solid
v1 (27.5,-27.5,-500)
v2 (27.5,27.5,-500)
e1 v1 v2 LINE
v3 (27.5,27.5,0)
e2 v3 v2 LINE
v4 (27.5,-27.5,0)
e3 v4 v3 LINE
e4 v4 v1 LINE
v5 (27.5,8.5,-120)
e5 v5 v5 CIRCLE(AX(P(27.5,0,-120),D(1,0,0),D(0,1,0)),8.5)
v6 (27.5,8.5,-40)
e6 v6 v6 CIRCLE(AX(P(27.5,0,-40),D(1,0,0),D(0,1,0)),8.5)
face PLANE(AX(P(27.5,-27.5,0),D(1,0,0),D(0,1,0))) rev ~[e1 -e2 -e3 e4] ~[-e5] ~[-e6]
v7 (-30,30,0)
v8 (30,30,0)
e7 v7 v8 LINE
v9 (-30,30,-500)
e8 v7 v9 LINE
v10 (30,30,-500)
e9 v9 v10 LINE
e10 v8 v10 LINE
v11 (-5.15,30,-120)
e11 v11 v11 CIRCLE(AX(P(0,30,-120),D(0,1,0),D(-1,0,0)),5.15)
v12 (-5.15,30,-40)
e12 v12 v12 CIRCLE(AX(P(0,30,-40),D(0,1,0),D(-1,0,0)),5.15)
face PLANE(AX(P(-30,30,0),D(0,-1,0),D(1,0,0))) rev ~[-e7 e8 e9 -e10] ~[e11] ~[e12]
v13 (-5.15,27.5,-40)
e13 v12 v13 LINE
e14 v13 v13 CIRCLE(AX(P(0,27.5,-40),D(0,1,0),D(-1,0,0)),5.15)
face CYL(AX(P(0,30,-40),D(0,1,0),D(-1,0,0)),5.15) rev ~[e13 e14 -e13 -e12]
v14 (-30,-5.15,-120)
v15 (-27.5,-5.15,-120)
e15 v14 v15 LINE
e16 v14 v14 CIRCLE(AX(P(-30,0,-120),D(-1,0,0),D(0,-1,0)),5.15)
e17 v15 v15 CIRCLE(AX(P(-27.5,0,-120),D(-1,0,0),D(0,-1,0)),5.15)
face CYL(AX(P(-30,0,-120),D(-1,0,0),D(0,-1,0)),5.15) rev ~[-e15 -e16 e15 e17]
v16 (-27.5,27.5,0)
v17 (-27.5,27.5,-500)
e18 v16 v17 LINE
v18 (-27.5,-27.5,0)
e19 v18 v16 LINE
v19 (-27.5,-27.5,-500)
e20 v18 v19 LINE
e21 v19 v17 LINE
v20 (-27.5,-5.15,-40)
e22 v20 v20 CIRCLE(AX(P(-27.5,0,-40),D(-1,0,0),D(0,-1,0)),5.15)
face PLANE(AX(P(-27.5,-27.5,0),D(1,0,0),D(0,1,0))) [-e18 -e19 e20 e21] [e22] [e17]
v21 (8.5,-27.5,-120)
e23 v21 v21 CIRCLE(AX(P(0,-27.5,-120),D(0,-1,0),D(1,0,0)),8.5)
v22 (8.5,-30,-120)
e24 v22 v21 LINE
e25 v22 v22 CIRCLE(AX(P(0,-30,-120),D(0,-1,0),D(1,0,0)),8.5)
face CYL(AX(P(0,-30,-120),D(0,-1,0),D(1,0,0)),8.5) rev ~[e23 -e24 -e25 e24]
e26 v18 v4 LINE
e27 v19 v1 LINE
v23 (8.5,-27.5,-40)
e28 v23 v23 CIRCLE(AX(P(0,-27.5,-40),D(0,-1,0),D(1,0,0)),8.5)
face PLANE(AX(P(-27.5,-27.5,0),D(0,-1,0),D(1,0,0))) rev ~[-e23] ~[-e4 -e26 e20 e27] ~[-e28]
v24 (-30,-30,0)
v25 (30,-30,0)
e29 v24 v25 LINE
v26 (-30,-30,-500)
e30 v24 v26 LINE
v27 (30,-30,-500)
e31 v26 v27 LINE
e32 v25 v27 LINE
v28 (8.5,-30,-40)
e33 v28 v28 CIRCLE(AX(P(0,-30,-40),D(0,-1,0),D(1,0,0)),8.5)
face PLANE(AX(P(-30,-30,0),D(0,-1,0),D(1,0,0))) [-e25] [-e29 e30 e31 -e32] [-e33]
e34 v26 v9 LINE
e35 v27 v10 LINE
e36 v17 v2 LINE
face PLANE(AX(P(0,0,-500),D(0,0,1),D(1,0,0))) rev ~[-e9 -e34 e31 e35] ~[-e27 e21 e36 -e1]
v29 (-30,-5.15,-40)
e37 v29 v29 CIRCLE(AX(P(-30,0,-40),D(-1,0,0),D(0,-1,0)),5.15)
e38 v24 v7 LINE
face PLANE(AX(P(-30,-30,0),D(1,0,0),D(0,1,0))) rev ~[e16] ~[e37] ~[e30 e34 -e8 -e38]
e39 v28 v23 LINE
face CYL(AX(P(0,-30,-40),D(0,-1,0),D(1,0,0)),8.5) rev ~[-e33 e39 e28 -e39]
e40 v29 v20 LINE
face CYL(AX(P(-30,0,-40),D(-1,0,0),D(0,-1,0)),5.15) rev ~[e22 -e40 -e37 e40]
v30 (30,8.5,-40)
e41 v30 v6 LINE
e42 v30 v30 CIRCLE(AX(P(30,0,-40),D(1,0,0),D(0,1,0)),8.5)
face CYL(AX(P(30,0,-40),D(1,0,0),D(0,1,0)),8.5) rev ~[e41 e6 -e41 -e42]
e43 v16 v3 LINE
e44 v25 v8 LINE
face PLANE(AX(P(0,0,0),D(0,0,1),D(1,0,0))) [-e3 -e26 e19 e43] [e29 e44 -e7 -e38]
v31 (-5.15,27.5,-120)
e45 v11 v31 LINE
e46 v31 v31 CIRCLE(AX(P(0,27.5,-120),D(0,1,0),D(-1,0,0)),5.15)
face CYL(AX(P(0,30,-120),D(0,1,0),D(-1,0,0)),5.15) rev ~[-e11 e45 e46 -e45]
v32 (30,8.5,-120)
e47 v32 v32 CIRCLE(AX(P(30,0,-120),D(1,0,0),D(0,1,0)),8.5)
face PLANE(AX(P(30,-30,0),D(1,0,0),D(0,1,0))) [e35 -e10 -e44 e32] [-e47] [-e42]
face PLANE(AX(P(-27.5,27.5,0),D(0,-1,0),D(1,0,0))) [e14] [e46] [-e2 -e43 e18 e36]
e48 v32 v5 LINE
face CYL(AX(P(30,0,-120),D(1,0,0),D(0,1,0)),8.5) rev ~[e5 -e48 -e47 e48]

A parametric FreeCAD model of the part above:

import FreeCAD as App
import Part
import Sketcher
from FreeCAD import Vector

doc = App.newDocument("Part")
params = doc.addObject("Spreadsheet::Sheet", "Params")
for row, (alias, value) in enumerate([
    ("sketch1_width", "60 mm"),
    ("sketch1_width2", "55 mm"),
    ("pad1_length", "500 mm"),
    ("sketch2_diameter", "17 mm"),
    ("pocket1_length", "5 mm"),
    ("sketch3_diameter", "17 mm"),
    ("pocket2_length", "5 mm"),
    ("sketch4_diameter", "10.3 mm"),
    ("pocket3_length", "5 mm"),
    ("sketch5_diameter", "10.3 mm"),
    ("pocket4_length", "5 mm"),
], start=1):
    params.set(f"A{row}", alias)
    params.set(f"B{row}", "=" + value)
    params.setAlias(f"B{row}", alias)

body = doc.addObject("PartDesign::Body", "Body")

# Sketch on XY plane
sketch1 = body.newObject("Sketcher::SketchObject", "Sketch")
sketch1.AttachmentSupport = (doc.getObject("XY_Plane"), [""])
sketch1.MapMode = "FlatFace"
sketch1.addGeometry([
    Part.LineSegment(Vector(-30, 30, 0), Vector(-30, -30, 0)),  # 0
    Part.LineSegment(Vector(-30, -30, 0), Vector(30, -30, 0)),  # 1
    Part.LineSegment(Vector(30, -30, 0), Vector(30, 30, 0)),  # 2
    Part.LineSegment(Vector(30, 30, 0), Vector(-30, 30, 0)),  # 3
    Part.LineSegment(Vector(28, -28, 0), Vector(-28, -28, 0)),  # 4
    Part.LineSegment(Vector(-28, -28, 0), Vector(-28, 28, 0)),  # 5
    Part.LineSegment(Vector(-28, 28, 0), Vector(28, 28, 0)),  # 6
    Part.LineSegment(Vector(28, 28, 0), Vector(28, -28, 0)),  # 7
], False)
sketch1.addConstraint([
    Sketcher.Constraint("Coincident", 0, 2, 1, 1),
    Sketcher.Constraint("Coincident", 1, 2, 2, 1),
    Sketcher.Constraint("Coincident", 2, 2, 3, 1),
    Sketcher.Constraint("Coincident", 3, 2, 0, 1),
    Sketcher.Constraint("Coincident", 4, 2, 5, 1),
    Sketcher.Constraint("Coincident", 5, 2, 6, 1),
    Sketcher.Constraint("Coincident", 6, 2, 7, 1),
    Sketcher.Constraint("Coincident", 7, 2, 4, 1),
    Sketcher.Constraint("Vertical", 0),
    Sketcher.Constraint("Horizontal", 1),
    Sketcher.Constraint("Vertical", 2),
    Sketcher.Constraint("Horizontal", 3),
    Sketcher.Constraint("Horizontal", 4),
    Sketcher.Constraint("Vertical", 5),
    Sketcher.Constraint("Horizontal", 6),
    Sketcher.Constraint("Vertical", 7),
    Sketcher.Constraint("Symmetric", 0, 2, 2, 2, -1, 1),
    Sketcher.Constraint("Symmetric", 4, 2, 6, 2, -1, 1),
    Sketcher.Constraint("Equal", 3, 0),
    Sketcher.Constraint("Equal", 6, 5),
    Sketcher.Constraint("DistanceX", 1, 1, 1, 2, 60.0),
    Sketcher.Constraint("DistanceX", 4, 2, 4, 1, 55.0),
])
sketch1.setExpression("Constraints[20]", "Params.sketch1_width")
sketch1.setExpression("Constraints[21]", "Params.sketch1_width2")
pad1 = body.newObject("PartDesign::Pad", "Pad")
pad1.Profile = sketch1
pad1.setExpression("Length", "Params.pad1_length")
pad1.Reversed = True

# Sketch on XZ plane
sketch2 = body.newObject("Sketcher::SketchObject", "Sketch001")
sketch2.AttachmentSupport = (doc.getObject("XZ_Plane"), [""])
sketch2.MapMode = "FlatFace"
sketch2.AttachmentOffset = App.Placement(Vector(0, 0, 30), App.Rotation())
sketch2.addGeometry([
    Part.Circle(Vector(0, -40, 0), Vector(0, 0, 1), 8),
    Part.Circle(Vector(0, -120, 0), Vector(0, 0, 1), 8),
], False)
sketch2.addConstraint([
    Sketcher.Constraint("Equal", 0, 1),
    Sketcher.Constraint("PointOnObject", 0, 3, -2),
    Sketcher.Constraint("PointOnObject", 1, 3, -2),
    Sketcher.Constraint("Diameter", 0, 17.0),
    Sketcher.Constraint("DistanceY", 0, 3, -1, 1, 40.0),
    Sketcher.Constraint("DistanceY", 1, 3, -1, 1, 120.0),
])
sketch2.setExpression("Constraints[3]", "Params.sketch2_diameter")
pocket1 = body.newObject("PartDesign::Pocket", "Pocket")
pocket1.Profile = sketch2
pocket1.setExpression("Length", "Params.pocket1_length")

# Sketch on YZ plane
sketch3 = body.newObject("Sketcher::SketchObject", "Sketch002")
sketch3.AttachmentSupport = (doc.getObject("YZ_Plane"), [""])
sketch3.MapMode = "FlatFace"
sketch3.AttachmentOffset = App.Placement(Vector(0, 0, 30), App.Rotation())
sketch3.addGeometry([
    Part.Circle(Vector(0, -40, 0), Vector(0, 0, 1), 8),
    Part.Circle(Vector(0, -120, 0), Vector(0, 0, 1), 8),
], False)
sketch3.addConstraint([
    Sketcher.Constraint("Equal", 0, 1),
    Sketcher.Constraint("PointOnObject", 0, 3, -2),
    Sketcher.Constraint("PointOnObject", 1, 3, -2),
    Sketcher.Constraint("Diameter", 0, 17.0),
    Sketcher.Constraint("DistanceY", 0, 3, -1, 1, 40.0),
    Sketcher.Constraint("DistanceY", 1, 3, -1, 1, 120.0),
])
sketch3.setExpression("Constraints[3]", "Params.sketch3_diameter")
pocket2 = body.newObject("PartDesign::Pocket", "Pocket001")
pocket2.Profile = sketch3
pocket2.setExpression("Length", "Params.pocket2_length")

# Sketch on YZ plane
sketch4 = body.newObject("Sketcher::SketchObject", "Sketch003")
sketch4.AttachmentSupport = (doc.getObject("YZ_Plane"), [""])
sketch4.MapMode = "FlatFace"
sketch4.AttachmentOffset = App.Placement(Vector(0, 0, -30), App.Rotation())
sketch4.addGeometry([
    Part.Circle(Vector(0, -40, 0), Vector(0, 0, 1), 5),
    Part.Circle(Vector(0, -120, 0), Vector(0, 0, 1), 5),
], False)
sketch4.addConstraint([
    Sketcher.Constraint("Equal", 0, 1),
    Sketcher.Constraint("PointOnObject", 0, 3, -2),
    Sketcher.Constraint("PointOnObject", 1, 3, -2),
    Sketcher.Constraint("Diameter", 0, 10.3),
    Sketcher.Constraint("DistanceY", 0, 3, -1, 1, 40.0),
    Sketcher.Constraint("DistanceY", 1, 3, -1, 1, 120.0),
])
sketch4.setExpression("Constraints[3]", "Params.sketch4_diameter")
pocket3 = body.newObject("PartDesign::Pocket", "Pocket002")
pocket3.Profile = sketch4
pocket3.setExpression("Length", "Params.pocket3_length")
pocket3.Reversed = True

# Sketch on XZ plane
sketch5 = body.newObject("Sketcher::SketchObject", "Sketch004")
sketch5.AttachmentSupport = (doc.getObject("XZ_Plane"), [""])
sketch5.MapMode = "FlatFace"
sketch5.AttachmentOffset = App.Placement(Vector(0, 0, -30), App.Rotation())
sketch5.addGeometry([
    Part.Circle(Vector(0, -40, 0), Vector(0, 0, 1), 5),
    Part.Circle(Vector(0, -120, 0), Vector(0, 0, 1), 5),
], False)
sketch5.addConstraint([
    Sketcher.Constraint("Equal", 0, 1),
    Sketcher.Constraint("PointOnObject", 0, 3, -2),
    Sketcher.Constraint("PointOnObject", 1, 3, -2),
    Sketcher.Constraint("Diameter", 0, 10.3),
    Sketcher.Constraint("DistanceY", 0, 3, -1, 1, 40.0),
    Sketcher.Constraint("DistanceY", 1, 3, -1, 1, 120.0),
])
sketch5.setExpression("Constraints[3]", "Params.sketch5_diameter")
pocket4 = body.newObject("PartDesign::Pocket", "Pocket003")
pocket4.Profile = sketch5
pocket4.setExpression("Length", "Params.pocket4_length")
pocket4.Reversed = True

doc.recompute()
